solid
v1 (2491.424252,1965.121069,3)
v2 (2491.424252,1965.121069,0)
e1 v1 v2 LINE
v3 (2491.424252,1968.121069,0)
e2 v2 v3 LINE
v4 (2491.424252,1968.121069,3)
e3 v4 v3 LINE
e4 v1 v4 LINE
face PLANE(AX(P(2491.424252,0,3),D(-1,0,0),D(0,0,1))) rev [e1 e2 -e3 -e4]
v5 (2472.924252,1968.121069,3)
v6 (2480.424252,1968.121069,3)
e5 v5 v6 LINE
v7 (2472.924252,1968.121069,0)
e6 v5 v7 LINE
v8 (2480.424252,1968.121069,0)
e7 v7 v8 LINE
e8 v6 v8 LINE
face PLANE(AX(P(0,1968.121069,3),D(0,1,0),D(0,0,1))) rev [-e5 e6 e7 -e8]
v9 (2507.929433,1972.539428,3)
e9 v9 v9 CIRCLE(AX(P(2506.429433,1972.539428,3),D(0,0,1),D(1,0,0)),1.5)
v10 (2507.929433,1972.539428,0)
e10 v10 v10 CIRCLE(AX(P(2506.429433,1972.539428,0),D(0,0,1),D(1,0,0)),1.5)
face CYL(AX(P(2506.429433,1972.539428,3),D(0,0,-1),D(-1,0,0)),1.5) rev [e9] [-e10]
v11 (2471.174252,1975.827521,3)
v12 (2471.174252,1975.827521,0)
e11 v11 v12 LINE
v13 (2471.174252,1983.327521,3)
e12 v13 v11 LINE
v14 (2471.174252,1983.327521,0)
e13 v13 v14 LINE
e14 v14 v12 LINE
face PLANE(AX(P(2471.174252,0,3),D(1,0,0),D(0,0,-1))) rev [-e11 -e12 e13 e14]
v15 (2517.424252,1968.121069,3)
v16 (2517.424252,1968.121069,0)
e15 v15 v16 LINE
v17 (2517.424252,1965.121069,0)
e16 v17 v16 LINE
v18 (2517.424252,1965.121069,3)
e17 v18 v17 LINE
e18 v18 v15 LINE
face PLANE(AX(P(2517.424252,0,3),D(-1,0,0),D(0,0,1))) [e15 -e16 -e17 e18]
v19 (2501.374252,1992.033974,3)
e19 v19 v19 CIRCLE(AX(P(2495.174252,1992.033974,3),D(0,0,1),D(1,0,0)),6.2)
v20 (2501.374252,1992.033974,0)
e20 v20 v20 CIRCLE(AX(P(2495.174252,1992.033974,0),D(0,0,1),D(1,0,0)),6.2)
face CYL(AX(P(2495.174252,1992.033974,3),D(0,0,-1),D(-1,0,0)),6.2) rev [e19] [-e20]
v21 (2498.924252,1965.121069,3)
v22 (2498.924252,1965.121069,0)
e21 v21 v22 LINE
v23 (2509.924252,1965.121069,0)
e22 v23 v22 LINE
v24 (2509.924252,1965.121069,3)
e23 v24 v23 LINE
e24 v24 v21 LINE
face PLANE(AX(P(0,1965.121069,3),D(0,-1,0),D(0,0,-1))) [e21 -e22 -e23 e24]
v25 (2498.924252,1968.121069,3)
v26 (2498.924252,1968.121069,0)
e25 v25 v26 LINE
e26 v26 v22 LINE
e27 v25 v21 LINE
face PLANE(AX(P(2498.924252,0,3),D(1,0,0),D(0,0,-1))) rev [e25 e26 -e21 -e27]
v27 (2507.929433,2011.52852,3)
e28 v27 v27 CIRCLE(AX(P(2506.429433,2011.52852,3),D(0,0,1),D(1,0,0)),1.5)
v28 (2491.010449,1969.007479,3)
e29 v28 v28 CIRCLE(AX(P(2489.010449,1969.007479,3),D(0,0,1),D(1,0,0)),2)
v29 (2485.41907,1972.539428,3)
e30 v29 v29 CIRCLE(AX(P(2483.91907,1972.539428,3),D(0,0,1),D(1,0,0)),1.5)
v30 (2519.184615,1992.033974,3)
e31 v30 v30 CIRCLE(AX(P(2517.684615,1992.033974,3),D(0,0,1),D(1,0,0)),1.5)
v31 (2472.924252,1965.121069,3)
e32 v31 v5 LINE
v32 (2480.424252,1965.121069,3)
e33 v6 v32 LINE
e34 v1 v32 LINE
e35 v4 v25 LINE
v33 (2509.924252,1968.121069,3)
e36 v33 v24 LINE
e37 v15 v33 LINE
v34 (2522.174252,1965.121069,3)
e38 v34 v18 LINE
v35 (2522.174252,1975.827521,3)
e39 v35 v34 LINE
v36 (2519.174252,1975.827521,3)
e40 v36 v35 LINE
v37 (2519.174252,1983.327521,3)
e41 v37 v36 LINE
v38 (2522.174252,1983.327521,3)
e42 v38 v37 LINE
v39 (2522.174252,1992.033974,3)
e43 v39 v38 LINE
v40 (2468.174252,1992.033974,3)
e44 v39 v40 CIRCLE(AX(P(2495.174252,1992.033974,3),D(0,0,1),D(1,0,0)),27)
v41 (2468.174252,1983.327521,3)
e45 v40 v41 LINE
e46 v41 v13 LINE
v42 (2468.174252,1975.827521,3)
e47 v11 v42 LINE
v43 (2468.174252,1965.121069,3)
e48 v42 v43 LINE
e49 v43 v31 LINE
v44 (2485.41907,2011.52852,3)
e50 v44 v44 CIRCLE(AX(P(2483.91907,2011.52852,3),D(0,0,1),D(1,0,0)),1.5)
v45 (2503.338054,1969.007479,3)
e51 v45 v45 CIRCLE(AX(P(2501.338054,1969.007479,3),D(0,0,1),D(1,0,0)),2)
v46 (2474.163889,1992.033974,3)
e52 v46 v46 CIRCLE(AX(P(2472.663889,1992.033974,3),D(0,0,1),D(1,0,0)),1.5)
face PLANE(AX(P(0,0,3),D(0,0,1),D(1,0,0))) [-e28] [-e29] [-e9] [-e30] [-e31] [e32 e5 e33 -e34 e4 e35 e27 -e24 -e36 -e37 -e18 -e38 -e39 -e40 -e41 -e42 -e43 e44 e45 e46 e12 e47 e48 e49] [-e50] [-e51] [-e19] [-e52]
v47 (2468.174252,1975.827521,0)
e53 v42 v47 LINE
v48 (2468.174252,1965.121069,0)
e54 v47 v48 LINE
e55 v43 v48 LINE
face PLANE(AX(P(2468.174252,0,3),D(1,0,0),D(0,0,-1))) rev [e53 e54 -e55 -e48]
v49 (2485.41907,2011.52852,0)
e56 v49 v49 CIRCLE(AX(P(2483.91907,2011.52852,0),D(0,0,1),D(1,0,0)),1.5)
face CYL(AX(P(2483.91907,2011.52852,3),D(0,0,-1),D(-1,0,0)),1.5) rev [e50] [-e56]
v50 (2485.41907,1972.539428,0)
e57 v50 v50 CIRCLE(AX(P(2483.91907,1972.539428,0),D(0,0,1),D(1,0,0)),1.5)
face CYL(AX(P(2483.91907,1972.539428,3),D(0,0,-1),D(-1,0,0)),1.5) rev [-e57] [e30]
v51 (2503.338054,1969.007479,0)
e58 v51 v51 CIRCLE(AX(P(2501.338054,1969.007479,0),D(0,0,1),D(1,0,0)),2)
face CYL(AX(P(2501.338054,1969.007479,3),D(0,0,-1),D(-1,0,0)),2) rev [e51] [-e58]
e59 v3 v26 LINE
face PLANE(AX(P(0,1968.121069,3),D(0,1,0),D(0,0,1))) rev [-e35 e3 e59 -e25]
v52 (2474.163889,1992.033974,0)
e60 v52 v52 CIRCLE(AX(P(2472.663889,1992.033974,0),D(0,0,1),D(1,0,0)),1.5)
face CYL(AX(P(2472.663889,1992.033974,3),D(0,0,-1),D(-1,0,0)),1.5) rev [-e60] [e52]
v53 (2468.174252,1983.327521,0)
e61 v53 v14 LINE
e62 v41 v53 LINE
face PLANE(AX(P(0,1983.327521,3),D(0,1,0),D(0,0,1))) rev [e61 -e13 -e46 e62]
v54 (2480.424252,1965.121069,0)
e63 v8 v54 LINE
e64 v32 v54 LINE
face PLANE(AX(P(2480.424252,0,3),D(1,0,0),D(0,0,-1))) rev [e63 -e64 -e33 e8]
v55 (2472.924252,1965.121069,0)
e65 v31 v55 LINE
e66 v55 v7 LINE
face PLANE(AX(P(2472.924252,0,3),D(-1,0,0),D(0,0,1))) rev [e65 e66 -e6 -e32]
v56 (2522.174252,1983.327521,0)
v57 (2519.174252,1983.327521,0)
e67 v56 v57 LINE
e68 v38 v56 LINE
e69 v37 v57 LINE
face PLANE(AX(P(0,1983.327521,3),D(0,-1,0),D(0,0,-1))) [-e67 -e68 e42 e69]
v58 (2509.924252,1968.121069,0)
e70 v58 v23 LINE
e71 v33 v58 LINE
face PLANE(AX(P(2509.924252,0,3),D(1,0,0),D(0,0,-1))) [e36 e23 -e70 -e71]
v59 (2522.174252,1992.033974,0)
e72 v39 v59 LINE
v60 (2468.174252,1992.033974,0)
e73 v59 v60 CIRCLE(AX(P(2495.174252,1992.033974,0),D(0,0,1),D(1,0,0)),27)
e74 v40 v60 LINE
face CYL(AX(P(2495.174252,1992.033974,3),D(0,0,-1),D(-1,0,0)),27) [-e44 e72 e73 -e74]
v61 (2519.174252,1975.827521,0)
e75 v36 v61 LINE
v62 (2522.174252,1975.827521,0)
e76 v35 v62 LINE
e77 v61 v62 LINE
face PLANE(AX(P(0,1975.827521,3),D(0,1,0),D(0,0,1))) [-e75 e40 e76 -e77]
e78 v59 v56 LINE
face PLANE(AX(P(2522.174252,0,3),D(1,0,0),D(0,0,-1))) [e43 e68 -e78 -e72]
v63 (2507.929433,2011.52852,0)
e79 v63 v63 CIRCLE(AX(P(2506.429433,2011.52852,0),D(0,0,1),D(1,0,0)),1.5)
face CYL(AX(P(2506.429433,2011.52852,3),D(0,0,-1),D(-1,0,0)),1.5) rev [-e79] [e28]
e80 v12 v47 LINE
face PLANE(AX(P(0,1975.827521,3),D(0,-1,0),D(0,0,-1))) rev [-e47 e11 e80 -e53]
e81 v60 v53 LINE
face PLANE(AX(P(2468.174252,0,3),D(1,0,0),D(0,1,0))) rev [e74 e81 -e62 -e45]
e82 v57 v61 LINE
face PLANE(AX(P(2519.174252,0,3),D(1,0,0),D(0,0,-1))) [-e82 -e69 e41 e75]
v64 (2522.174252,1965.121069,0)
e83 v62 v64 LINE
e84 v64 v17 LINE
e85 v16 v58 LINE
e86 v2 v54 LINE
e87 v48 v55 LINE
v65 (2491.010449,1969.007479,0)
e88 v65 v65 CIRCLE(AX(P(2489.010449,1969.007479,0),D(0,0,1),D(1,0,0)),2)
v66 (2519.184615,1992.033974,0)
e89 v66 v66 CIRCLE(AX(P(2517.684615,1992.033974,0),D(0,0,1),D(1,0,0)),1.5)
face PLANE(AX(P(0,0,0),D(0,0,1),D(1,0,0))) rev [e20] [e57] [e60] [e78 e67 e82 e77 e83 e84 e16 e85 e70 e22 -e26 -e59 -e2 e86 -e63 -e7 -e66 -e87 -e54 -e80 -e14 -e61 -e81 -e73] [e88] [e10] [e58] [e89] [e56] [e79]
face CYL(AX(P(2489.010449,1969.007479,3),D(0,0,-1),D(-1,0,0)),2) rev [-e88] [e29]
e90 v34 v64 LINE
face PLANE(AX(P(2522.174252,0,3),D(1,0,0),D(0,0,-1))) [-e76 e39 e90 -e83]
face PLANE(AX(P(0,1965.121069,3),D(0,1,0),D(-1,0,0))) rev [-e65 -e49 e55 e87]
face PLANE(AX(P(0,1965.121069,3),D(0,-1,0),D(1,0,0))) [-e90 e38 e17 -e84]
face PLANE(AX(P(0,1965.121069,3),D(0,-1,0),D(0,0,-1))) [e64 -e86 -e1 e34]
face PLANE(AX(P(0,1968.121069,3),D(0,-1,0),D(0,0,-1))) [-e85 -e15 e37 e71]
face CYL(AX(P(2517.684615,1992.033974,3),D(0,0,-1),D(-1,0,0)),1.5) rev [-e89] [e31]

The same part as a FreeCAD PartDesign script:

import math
import FreeCAD as App
import Part
import Sketcher

V = App.Vector

doc = App.newDocument("Part")
body = doc.addObject("PartDesign::Body", "Body")

# Sketch on XY plane
sketch1 = body.newObject("Sketcher::SketchObject", "Sketch")
sketch1.AttachmentSupport = (doc.getObject("XY_Plane"), [""])
sketch1.MapMode = "FlatFace"
sketch1.addGeometry([
    Part.LineSegment(V(2522.2, 1983.3, 0), V(2522.2, 1992, 0)),  # 0
    Part.ArcOfCircle(Part.Circle(V(2495.2, 1992, 0), V(0, 0, 1), 27), math.radians(0), math.radians(180)),  # 1
    Part.LineSegment(V(2468.2, 1992, 0), V(2468.2, 1983.3, 0)),  # 2
    Part.LineSegment(V(2468.2, 1983.3, 0), V(2471.2, 1983.3, 0)),  # 3
    Part.LineSegment(V(2471.2, 1983.3, 0), V(2471.2, 1975.8, 0)),  # 4
    Part.LineSegment(V(2471.2, 1975.8, 0), V(2468.2, 1975.8, 0)),  # 5
    Part.LineSegment(V(2468.2, 1975.8, 0), V(2468.2, 1965.1, 0)),  # 6
    Part.LineSegment(V(2468.2, 1965.1, 0), V(2472.9, 1965.1, 0)),  # 7
    Part.LineSegment(V(2472.9, 1965.1, 0), V(2472.9, 1968.1, 0)),  # 8
    Part.LineSegment(V(2472.9, 1968.1, 0), V(2480.4, 1968.1, 0)),  # 9
    Part.LineSegment(V(2480.4, 1968.1, 0), V(2480.4, 1965.1, 0)),  # 10
    Part.LineSegment(V(2480.4, 1965.1, 0), V(2491.4, 1965.1, 0)),  # 11
    Part.LineSegment(V(2491.4, 1965.1, 0), V(2491.4, 1968.1, 0)),  # 12
    Part.LineSegment(V(2491.4, 1968.1, 0), V(2498.9, 1968.1, 0)),  # 13
    Part.LineSegment(V(2498.9, 1968.1, 0), V(2498.9, 1965.1, 0)),  # 14
    Part.LineSegment(V(2498.9, 1965.1, 0), V(2509.9, 1965.1, 0)),  # 15
    Part.LineSegment(V(2509.9, 1965.1, 0), V(2509.9, 1968.1, 0)),  # 16
    Part.LineSegment(V(2509.9, 1968.1, 0), V(2517.4, 1968.1, 0)),  # 17
    Part.LineSegment(V(2517.4, 1968.1, 0), V(2517.4, 1965.1, 0)),  # 18
    Part.LineSegment(V(2517.4, 1965.1, 0), V(2522.2, 1965.1, 0)),  # 19
    Part.LineSegment(V(2522.2, 1965.1, 0), V(2522.2, 1975.8, 0)),  # 20
    Part.LineSegment(V(2522.2, 1975.8, 0), V(2519.2, 1975.8, 0)),  # 21
    Part.LineSegment(V(2519.2, 1975.8, 0), V(2519.2, 1983.3, 0)),  # 22
    Part.LineSegment(V(2519.2, 1983.3, 0), V(2522.2, 1983.3, 0)),  # 23
    Part.Circle(V(2501.3, 1969, 0), V(0, 0, 1), 2),  # 24
    Part.Circle(V(2506.4, 1972.5, 0), V(0, 0, 1), 1.5),  # 25
    Part.Circle(V(2489, 1969, 0), V(0, 0, 1), 2),  # 26
    Part.Circle(V(2483.9, 1972.5, 0), V(0, 0, 1), 1.5),  # 27
    Part.Circle(V(2517.7, 1992, 0), V(0, 0, 1), 1.5),  # 28
    Part.Circle(V(2506.4, 2011.5, 0), V(0, 0, 1), 1.5),  # 29
    Part.Circle(V(2495.2, 1992, 0), V(0, 0, 1), 6.2),  # 30
    Part.Circle(V(2472.7, 1992, 0), V(0, 0, 1), 1.5),  # 31
    Part.Circle(V(2483.9, 2011.5, 0), V(0, 0, 1), 1.5),  # 32
], False)
sketch1.addConstraint([
    Sketcher.Constraint("Tangent", 0, 2, 1, 1),
    Sketcher.Constraint("Tangent", 1, 2, 2, 1),
    Sketcher.Constraint("Coincident", 2, 2, 3, 1),
    Sketcher.Constraint("Coincident", 3, 2, 4, 1),
    Sketcher.Constraint("Coincident", 4, 2, 5, 1),
    Sketcher.Constraint("Coincident", 5, 2, 6, 1),
    Sketcher.Constraint("Coincident", 6, 2, 7, 1),
    Sketcher.Constraint("Coincident", 7, 2, 8, 1),
    Sketcher.Constraint("Coincident", 8, 2, 9, 1),
    Sketcher.Constraint("Coincident", 9, 2, 10, 1),
    Sketcher.Constraint("Coincident", 10, 2, 11, 1),
    Sketcher.Constraint("Coincident", 11, 2, 12, 1),
    Sketcher.Constraint("Coincident", 12, 2, 13, 1),
    Sketcher.Constraint("Coincident", 13, 2, 14, 1),
    Sketcher.Constraint("Coincident", 14, 2, 15, 1),
    Sketcher.Constraint("Coincident", 15, 2, 16, 1),
    Sketcher.Constraint("Coincident", 16, 2, 17, 1),
    Sketcher.Constraint("Coincident", 17, 2, 18, 1),
    Sketcher.Constraint("Coincident", 18, 2, 19, 1),
    Sketcher.Constraint("Coincident", 19, 2, 20, 1),
    Sketcher.Constraint("Coincident", 20, 2, 21, 1),
    Sketcher.Constraint("Coincident", 21, 2, 22, 1),
    Sketcher.Constraint("Coincident", 22, 2, 23, 1),
    Sketcher.Constraint("Coincident", 23, 2, 0, 1),
    Sketcher.Constraint("Vertical", 0),
    Sketcher.Constraint("Vertical", 2),
    Sketcher.Constraint("Horizontal", 3),
    Sketcher.Constraint("Vertical", 4),
    Sketcher.Constraint("Horizontal", 5),
    Sketcher.Constraint("Vertical", 6),
    Sketcher.Constraint("Horizontal", 7),
    Sketcher.Constraint("Vertical", 8),
    Sketcher.Constraint("Horizontal", 9),
    Sketcher.Constraint("Vertical", 10),
    Sketcher.Constraint("Horizontal", 11),
    Sketcher.Constraint("Vertical", 12),
    Sketcher.Constraint("Horizontal", 13),
    Sketcher.Constraint("Vertical", 14),
    Sketcher.Constraint("Horizontal", 15),
    Sketcher.Constraint("Vertical", 16),
    Sketcher.Constraint("Horizontal", 17),
    Sketcher.Constraint("Vertical", 18),
    Sketcher.Constraint("Horizontal", 19),
    Sketcher.Constraint("Vertical", 20),
    Sketcher.Constraint("Horizontal", 21),
    Sketcher.Constraint("Vertical", 22),
    Sketcher.Constraint("Horizontal", 23),
    Sketcher.Constraint("Coincident", 30, 3, 1, 3),
    Sketcher.Constraint("Equal", 24, 26),
    Sketcher.Constraint("Equal", 25, 27),
    Sketcher.Constraint("Equal", 27, 28),
    Sketcher.Constraint("Equal", 28, 29),
    Sketcher.Constraint("Equal", 29, 31),
    Sketcher.Constraint("Equal", 31, 32),
    Sketcher.Constraint("Horizontal", 24, 3, 26, 3),
    Sketcher.Constraint("Horizontal", 25, 3, 27, 3),
    Sketcher.Constraint("Horizontal", 1, 3, 28, 3),
    Sketcher.Constraint("Horizontal", 30, 3, 31, 3),
    Sketcher.Constraint("Horizontal", 29, 3, 32, 3),
    Sketcher.Constraint("Horizontal", 7, 2, 10, 2),
    Sketcher.Constraint("Horizontal", 9, 2, 12, 2),
    Sketcher.Constraint("Horizontal", 11, 2, 14, 2),
    Sketcher.Constraint("Horizontal", 13, 2, 16, 2),
    Sketcher.Constraint("Horizontal", 15, 2, 18, 2),
    Sketcher.Constraint("Horizontal", 5, 2, 20, 2),
    Sketcher.Constraint("Horizontal", 3, 2, 22, 2),
    Sketcher.Constraint("Vertical", 25, 3, 29, 3),
    Sketcher.Constraint("Vertical", 27, 3, 32, 3),
    Sketcher.Constraint("Vertical", 2, 2, 5, 2),
    Sketcher.Constraint("Vertical", 0, 2, 19, 2),
    Sketcher.Constraint("Equal", 9, 13),
    Sketcher.Constraint("Equal", 11, 15),
    Sketcher.Constraint("Equal", 13, 17),
    Sketcher.Constraint("Equal", 7, 19),
    Sketcher.Constraint("Equal", 5, 21),
    Sketcher.Constraint("Equal", 17, 4),
    Sketcher.Constraint("Equal", 23, 8),
    Sketcher.Constraint("Diameter", 24, 4.0),
    Sketcher.Constraint("Diameter", 25, 3.0),
    Sketcher.Constraint("Radius", 1, 27.0),
    Sketcher.Constraint("Diameter", 30, 12.4),
    Sketcher.Constraint("DistanceX", 3, 1, 3, 2, 3.0),
    Sketcher.Constraint("DistanceX", 11, 1, 11, 2, 11.0),
    Sketcher.Constraint("DistanceX", 9, 1, 9, 2, 7.5),
    Sketcher.Constraint("DistanceY", 0, 1, 0, 2, 8.706453),
    Sketcher.Constraint("DistanceY", 6, 2, 6, 1, 10.706453),
    Sketcher.Constraint("DistanceX", -1, 1, 1, 3, 2495.174252),
    Sketcher.Constraint("DistanceY", -1, 1, 24, 3, 1969.007479),
    Sketcher.Constraint("DistanceY", -1, 1, 25, 3, 1972.539428),
    Sketcher.Constraint("DistanceX", -1, 1, 26, 3, 2489.010449),
    Sketcher.Constraint("DistanceX", -1, 1, 27, 3, 2483.91907),
    Sketcher.Constraint("DistanceY", -1, 1, 29, 3, 2011.52852),
    Sketcher.Constraint("DistanceX", -1, 1, 31, 3, 2472.663889),
    Sketcher.Constraint("DistanceY", -1, 1, 2, 2, 1983.327521),
    Sketcher.Constraint("DistanceX", 24, 3, 25, 3, 5.091379),
    Sketcher.Constraint("DistanceX", 1, 3, 25, 3, 11.255181),
    Sketcher.Constraint("DistanceX", 25, 3, 28, 3, 11.255181),
])
pad1 = body.newObject("PartDesign::Pad", "Pad")
pad1.Profile = sketch1
pad1.Length = 3

doc.recompute()
